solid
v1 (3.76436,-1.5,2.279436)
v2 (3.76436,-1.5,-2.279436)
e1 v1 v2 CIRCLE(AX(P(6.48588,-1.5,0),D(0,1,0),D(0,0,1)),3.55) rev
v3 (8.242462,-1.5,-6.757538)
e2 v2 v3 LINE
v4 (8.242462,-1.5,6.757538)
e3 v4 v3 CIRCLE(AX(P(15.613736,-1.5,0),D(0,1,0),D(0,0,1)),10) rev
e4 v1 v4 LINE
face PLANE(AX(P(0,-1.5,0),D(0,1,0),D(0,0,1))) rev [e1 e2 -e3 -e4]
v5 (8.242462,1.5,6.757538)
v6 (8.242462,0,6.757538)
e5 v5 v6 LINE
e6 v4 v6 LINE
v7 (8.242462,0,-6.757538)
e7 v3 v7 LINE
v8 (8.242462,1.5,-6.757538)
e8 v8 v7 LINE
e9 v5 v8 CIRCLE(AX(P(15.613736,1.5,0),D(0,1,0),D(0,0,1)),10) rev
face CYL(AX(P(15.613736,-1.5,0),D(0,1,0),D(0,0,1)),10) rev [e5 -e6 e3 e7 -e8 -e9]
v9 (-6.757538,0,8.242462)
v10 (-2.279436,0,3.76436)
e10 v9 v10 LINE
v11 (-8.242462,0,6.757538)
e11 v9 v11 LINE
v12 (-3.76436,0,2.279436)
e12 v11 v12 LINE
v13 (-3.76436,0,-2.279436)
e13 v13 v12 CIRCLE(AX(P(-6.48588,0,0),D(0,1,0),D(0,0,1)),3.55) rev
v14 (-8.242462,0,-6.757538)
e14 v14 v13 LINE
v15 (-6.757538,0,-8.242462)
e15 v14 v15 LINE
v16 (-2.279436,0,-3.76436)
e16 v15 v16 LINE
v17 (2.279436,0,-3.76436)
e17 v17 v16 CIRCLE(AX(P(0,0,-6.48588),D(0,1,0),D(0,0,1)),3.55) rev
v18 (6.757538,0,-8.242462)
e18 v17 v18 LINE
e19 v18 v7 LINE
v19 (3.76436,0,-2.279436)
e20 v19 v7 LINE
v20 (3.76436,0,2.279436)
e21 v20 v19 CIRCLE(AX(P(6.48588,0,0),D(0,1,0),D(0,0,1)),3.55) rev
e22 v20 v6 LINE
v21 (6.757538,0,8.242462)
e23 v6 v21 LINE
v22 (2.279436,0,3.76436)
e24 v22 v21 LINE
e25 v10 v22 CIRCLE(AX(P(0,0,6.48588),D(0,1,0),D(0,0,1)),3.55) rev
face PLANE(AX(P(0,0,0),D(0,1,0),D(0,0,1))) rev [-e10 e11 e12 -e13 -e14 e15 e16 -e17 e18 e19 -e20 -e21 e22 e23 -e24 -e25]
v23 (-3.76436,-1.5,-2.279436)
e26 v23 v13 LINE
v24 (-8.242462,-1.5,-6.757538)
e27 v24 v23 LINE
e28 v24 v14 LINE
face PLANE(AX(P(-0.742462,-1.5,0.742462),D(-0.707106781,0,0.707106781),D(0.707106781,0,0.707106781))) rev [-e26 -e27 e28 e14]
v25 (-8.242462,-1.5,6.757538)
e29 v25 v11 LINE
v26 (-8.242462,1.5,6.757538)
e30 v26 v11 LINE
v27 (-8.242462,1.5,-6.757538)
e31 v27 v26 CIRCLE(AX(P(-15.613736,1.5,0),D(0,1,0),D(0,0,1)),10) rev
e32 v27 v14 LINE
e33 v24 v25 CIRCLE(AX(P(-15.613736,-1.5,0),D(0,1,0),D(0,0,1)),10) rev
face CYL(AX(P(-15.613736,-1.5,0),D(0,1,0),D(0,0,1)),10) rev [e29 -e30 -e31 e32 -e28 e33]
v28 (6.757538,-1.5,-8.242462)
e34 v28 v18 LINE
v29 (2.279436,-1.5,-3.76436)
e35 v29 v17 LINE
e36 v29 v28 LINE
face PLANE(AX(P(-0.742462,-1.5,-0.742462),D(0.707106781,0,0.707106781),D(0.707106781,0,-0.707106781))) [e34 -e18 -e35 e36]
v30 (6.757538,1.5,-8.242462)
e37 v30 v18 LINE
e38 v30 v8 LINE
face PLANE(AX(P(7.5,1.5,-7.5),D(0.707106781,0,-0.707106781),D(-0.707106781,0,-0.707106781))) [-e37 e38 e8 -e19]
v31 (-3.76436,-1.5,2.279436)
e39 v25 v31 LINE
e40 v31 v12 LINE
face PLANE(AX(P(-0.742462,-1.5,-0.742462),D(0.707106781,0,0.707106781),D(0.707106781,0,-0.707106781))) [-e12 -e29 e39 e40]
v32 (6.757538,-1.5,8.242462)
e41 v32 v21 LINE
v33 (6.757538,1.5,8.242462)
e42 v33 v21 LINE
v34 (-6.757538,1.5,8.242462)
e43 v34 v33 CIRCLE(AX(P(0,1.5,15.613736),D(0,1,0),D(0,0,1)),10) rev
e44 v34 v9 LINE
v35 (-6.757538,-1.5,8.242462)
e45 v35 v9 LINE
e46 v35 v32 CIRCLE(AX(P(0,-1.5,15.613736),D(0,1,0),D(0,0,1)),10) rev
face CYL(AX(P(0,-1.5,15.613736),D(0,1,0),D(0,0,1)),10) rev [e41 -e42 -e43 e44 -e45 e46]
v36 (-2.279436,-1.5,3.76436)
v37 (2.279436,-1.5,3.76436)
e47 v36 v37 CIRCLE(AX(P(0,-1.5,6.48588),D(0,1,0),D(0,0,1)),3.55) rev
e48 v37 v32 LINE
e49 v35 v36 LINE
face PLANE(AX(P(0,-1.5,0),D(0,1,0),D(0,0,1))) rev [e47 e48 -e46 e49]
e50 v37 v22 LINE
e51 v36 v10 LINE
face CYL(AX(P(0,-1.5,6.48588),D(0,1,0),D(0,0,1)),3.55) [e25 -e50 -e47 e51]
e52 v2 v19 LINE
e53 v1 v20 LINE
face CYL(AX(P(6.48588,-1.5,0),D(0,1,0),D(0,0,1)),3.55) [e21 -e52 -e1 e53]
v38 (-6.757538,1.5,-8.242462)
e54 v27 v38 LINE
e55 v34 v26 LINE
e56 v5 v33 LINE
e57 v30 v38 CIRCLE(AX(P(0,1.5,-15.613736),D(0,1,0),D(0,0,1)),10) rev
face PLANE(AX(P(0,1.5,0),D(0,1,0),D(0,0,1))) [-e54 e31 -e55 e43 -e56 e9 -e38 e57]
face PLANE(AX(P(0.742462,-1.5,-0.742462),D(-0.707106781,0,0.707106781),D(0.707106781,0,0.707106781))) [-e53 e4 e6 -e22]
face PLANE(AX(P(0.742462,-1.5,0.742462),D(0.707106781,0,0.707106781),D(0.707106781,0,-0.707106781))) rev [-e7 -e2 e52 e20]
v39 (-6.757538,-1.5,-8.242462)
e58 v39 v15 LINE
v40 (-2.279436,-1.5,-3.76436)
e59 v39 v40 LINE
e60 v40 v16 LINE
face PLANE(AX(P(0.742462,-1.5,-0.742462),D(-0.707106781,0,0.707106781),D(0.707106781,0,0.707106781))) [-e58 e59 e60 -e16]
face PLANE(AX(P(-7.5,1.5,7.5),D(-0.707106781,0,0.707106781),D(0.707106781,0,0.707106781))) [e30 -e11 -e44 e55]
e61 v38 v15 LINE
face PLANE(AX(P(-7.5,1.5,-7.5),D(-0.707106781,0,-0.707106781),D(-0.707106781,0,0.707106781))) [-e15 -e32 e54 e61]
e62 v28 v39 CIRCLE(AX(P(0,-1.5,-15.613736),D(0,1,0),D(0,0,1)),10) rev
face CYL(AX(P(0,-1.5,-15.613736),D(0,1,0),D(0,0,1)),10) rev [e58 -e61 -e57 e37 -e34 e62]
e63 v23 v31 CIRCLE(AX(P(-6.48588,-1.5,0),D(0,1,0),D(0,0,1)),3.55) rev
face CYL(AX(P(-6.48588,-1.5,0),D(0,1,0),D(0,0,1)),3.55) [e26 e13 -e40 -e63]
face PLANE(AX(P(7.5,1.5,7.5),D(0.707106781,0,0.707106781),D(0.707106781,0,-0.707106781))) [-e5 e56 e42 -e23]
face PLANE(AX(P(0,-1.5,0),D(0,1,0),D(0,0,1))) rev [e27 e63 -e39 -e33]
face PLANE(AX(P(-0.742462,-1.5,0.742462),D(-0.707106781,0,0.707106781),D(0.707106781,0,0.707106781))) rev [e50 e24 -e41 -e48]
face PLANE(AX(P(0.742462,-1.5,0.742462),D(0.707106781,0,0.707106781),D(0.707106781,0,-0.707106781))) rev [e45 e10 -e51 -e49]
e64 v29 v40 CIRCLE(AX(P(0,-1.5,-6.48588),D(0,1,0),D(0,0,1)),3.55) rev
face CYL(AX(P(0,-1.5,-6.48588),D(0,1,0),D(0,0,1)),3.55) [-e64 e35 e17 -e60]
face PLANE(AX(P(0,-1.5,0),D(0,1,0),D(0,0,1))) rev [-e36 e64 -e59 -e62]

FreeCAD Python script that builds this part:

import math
import FreeCAD as App
import Part
import Sketcher

doc = App.newDocument("Part")
body = doc.addObject("PartDesign::Body", "Body")

# Sketch on XZ plane
sketch1 = body.newObject("Sketcher::SketchObject", "Sketch")
sketch1.AttachmentSupport = (doc.getObject("XZ_Plane"), [""])
sketch1.MapMode = "FlatFace"
sketch1.addGeometry([
    Part.LineSegment(App.Vector(2.3, -3.8, 0), App.Vector(6.8, -8.2, 0)),
    Part.ArcOfCircle(Part.Circle(App.Vector(0, -15.6, 0), App.Vector(0, 0, 1), 10), math.radians(47), math.radians(133)),
    Part.LineSegment(App.Vector(-6.8, -8.2, 0), App.Vector(-2.3, -3.8, 0)),
    Part.ArcOfCircle(Part.Circle(App.Vector(0, -6.5, 0), App.Vector(0, 0, 1), 3.5), math.radians(50), math.radians(130)),
], False)
sketch1.addConstraint([
    Sketcher.Constraint("Coincident", 0, 2, 1, 1),
    Sketcher.Constraint("Coincident", 1, 2, 2, 1),
    Sketcher.Constraint("Coincident", 2, 2, 3, 2),
    Sketcher.Constraint("Coincident", 3, 1, 0, 1),
    Sketcher.Constraint("Symmetric", 0, 2, 1, 2, -2),
    Sketcher.Constraint("Symmetric", 2, 2, 3, 1, -2),
    Sketcher.Constraint("Perpendicular", 0, 2),
    Sketcher.Constraint("Radius", 1, 10.0),
    Sketcher.Constraint("Radius", 3, 3.55),
    Sketcher.Constraint("DistanceY", 3, 3, -1, 1, 6.48588),
    Sketcher.Constraint("DistanceY", 2, 2, -1, 1, 3.76436),
    Sketcher.Constraint("DistanceY", 0, 2, 3, 3, 1.756582),
])
pad1 = body.newObject("PartDesign::Pad", "Pad")
pad1.Profile = sketch1
pad1.Type = "TwoLengths"
pad1.Length = 1.5
pad1.Length2 = 1.5
pad1.Reversed = True
body2 = doc.addObject("PartDesign::Body", "Body001")

# Sketch on XZ plane
sketch2 = body2.newObject("Sketcher::SketchObject", "Sketch001")
sketch2.AttachmentSupport = (doc.getObject("XZ_Plane001"), [""])
sketch2.MapMode = "FlatFace"
sketch2.addGeometry([
    Part.LineSegment(App.Vector(-3.8, -2.3, 0), App.Vector(-8.2, -6.8, 0)),
    Part.ArcOfCircle(Part.Circle(App.Vector(-15.6, 0, 0), App.Vector(0, 0, 1), 10), math.radians(-43), math.radians(43)),
    Part.LineSegment(App.Vector(-8.2, 6.8, 0), App.Vector(-3.8, 2.3, 0)),
    Part.ArcOfCircle(Part.Circle(App.Vector(-6.5, 0, 0), App.Vector(0, 0, 1), 3.5), math.radians(-40), math.radians(40)),
], False)
sketch2.addConstraint([
    Sketcher.Constraint("Coincident", 0, 2, 1, 1),
    Sketcher.Constraint("Coincident", 1, 2, 2, 1),
    Sketcher.Constraint("Coincident", 2, 2, 3, 2),
    Sketcher.Constraint("Coincident", 3, 1, 0, 1),
    Sketcher.Constraint("Symmetric", 0, 2, 1, 2, -1),
    Sketcher.Constraint("Symmetric", 2, 2, 3, 1, -1),
    Sketcher.Constraint("Perpendicular", 0, 2),
    Sketcher.Constraint("Radius", 1, 10.0),
    Sketcher.Constraint("Radius", 3, 3.55),
    Sketcher.Constraint("DistanceX", 3, 3, -1, 1, 6.48588),
    Sketcher.Constraint("DistanceX", 2, 2, -1, 1, 3.76436),
    Sketcher.Constraint("DistanceX", 0, 2, 3, 3, 1.756582),
])
pad2 = body2.newObject("PartDesign::Pad", "Pad001")
pad2.Profile = sketch2
pad2.Type = "TwoLengths"
pad2.Length = 1.5
pad2.Length2 = 1.5
pad2.Reversed = True
body3 = doc.addObject("PartDesign::Body", "Body002")

# Sketch on XZ plane
sketch3 = body3.newObject("Sketcher::SketchObject", "Sketch002")
sketch3.AttachmentSupport = (doc.getObject("XZ_Plane002"), [""])
sketch3.MapMode = "FlatFace"
sketch3.addGeometry([
    Part.LineSegment(App.Vector(-2.3, 3.8, 0), App.Vector(-6.8, 8.2, 0)),
    Part.ArcOfCircle(Part.Circle(App.Vector(0, 15.6, 0), App.Vector(0, 0, 1), 10), math.radians(-133), math.radians(-47)),
    Part.LineSegment(App.Vector(6.8, 8.2, 0), App.Vector(2.3, 3.8, 0)),
    Part.ArcOfCircle(Part.Circle(App.Vector(0, 6.5, 0), App.Vector(0, 0, 1), 3.5), math.radians(-130), math.radians(-50)),
], False)
sketch3.addConstraint([
    Sketcher.Constraint("Coincident", 0, 2, 1, 1),
    Sketcher.Constraint("Coincident", 1, 2, 2, 1),
    Sketcher.Constraint("Coincident", 2, 2, 3, 2),
    Sketcher.Constraint("Coincident", 3, 1, 0, 1),
    Sketcher.Constraint("Symmetric", 0, 2, 1, 2, -2),
    Sketcher.Constraint("Symmetric", 2, 2, 3, 1, -2),
    Sketcher.Constraint("Perpendicular", 0, 2),
    Sketcher.Constraint("Radius", 1, 10.0),
    Sketcher.Constraint("Radius", 3, 3.55),
    Sketcher.Constraint("DistanceY", -1, 1, 3, 3, 6.48588),
    Sketcher.Constraint("DistanceY", -1, 1, 2, 2, 3.76436),
    Sketcher.Constraint("DistanceY", 3, 3, 0, 2, 1.756582),
])
pad3 = body3.newObject("PartDesign::Pad", "Pad002")
pad3.Profile = sketch3
pad3.Type = "TwoLengths"
pad3.Length = 1.5
pad3.Length2 = 1.5
pad3.Reversed = True
body4 = doc.addObject("PartDesign::Body", "Body003")

# Sketch on XZ plane
sketch4 = body4.newObject("Sketcher::SketchObject", "Sketch003")
sketch4.AttachmentSupport = (doc.getObject("XZ_Plane003"), [""])
sketch4.MapMode = "FlatFace"
sketch4.addGeometry([
    Part.LineSegment(App.Vector(3.8, 2.3, 0), App.Vector(8.2, 6.8, 0)),
    Part.ArcOfCircle(Part.Circle(App.Vector(15.6, 0, 0), App.Vector(0, 0, 1), 10), math.radians(137), math.radians(223)),
    Part.LineSegment(App.Vector(8.2, -6.8, 0), App.Vector(3.8, -2.3, 0)),
    Part.ArcOfCircle(Part.Circle(App.Vector(6.5, 0, 0), App.Vector(0, 0, 1), 3.5), math.radians(140), math.radians(220)),
], False)
sketch4.addConstraint([
    Sketcher.Constraint("Coincident", 0, 2, 1, 1),
    Sketcher.Constraint("Coincident", 1, 2, 2, 1),
    Sketcher.Constraint("Coincident", 2, 2, 3, 2),
    Sketcher.Constraint("Coincident", 3, 1, 0, 1),
    Sketcher.Constraint("Symmetric", 0, 2, 1, 2, -1),
    Sketcher.Constraint("Symmetric", 2, 2, 3, 1, -1),
    Sketcher.Constraint("Perpendicular", 0, 2),
    Sketcher.Constraint("Radius", 1, 10.0),
    Sketcher.Constraint("Radius", 3, 3.55),
    Sketcher.Constraint("DistanceX", -1, 1, 3, 3, 6.48588),
    Sketcher.Constraint("DistanceX", -1, 1, 2, 2, 3.76436),
    Sketcher.Constraint("DistanceX", 3, 3, 0, 2, 1.756582),
])
pad4 = body4.newObject("PartDesign::Pad", "Pad003")
pad4.Profile = sketch4
pad4.Type = "TwoLengths"
pad4.Length = 1.5
pad4.Length2 = 1.5
pad4.Reversed = True
body.AllowCompound = True
doc.recompute()

boolean = body.newObject("PartDesign::Boolean", "Boolean")
boolean.Type = "Fuse"
boolean.addObjects([body2])
doc.recompute()

boolean2 = body.newObject("PartDesign::Boolean", "Boolean001")
boolean2.Type = "Fuse"
boolean2.addObjects([body3])
doc.recompute()

boolean3 = body.newObject("PartDesign::Boolean", "Boolean002")
boolean3.Type = "Fuse"
boolean3.addObjects([body4])

# Sketch on XZ plane
sketch5 = body.newObject("Sketcher::SketchObject", "Sketch004")
sketch5.AttachmentSupport = (doc.getObject("XZ_Plane"), [""])
sketch5.MapMode = "FlatFace"
sketch5.addGeometry([
    Part.LineSegment(App.Vector(6.8, -8.2, 0), App.Vector(2.3, -3.8, 0)),  # 0
    Part.ArcOfCircle(Part.Circle(App.Vector(0, -6.5, 0), App.Vector(0, 0, 1), 3.5), math.radians(50), math.radians(130)),  # 1
    Part.LineSegment(App.Vector(-2.3, -3.8, 0), App.Vector(-6.8, -8.2, 0)),  # 2
    Part.LineSegment(App.Vector(-6.8, -8.2, 0), App.Vector(-8.2, -6.8, 0)),  # 3
    Part.LineSegment(App.Vector(-8.2, -6.8, 0), App.Vector(-3.8, -2.3, 0)),  # 4
    Part.ArcOfCircle(Part.Circle(App.Vector(-6.5, 0, 0), App.Vector(0, 0, 1), 3.5), math.radians(-40), math.radians(40)),  # 5
    Part.LineSegment(App.Vector(-3.8, 2.3, 0), App.Vector(-8.2, 6.8, 0)),  # 6
    Part.LineSegment(App.Vector(-8.2, 6.8, 0), App.Vector(-6.8, 8.2, 0)),  # 7
    Part.LineSegment(App.Vector(-6.8, 8.2, 0), App.Vector(-2.3, 3.8, 0)),  # 8
    Part.ArcOfCircle(Part.Circle(App.Vector(0, 6.5, 0), App.Vector(0, 0, 1), 3.5), math.radians(-130), math.radians(-50)),  # 9
    Part.LineSegment(App.Vector(2.3, 3.8, 0), App.Vector(6.8, 8.2, 0)),  # 10
    Part.LineSegment(App.Vector(6.8, 8.2, 0), App.Vector(8.2, 6.8, 0)),  # 11
    Part.LineSegment(App.Vector(8.2, 6.8, 0), App.Vector(3.8, 2.3, 0)),  # 12
    Part.ArcOfCircle(Part.Circle(App.Vector(6.5, 0, 0), App.Vector(0, 0, 1), 3.5), math.radians(140), math.radians(220)),  # 13
    Part.LineSegment(App.Vector(3.8, -2.3, 0), App.Vector(8.2, -6.8, 0)),  # 14
    Part.LineSegment(App.Vector(8.2, -6.8, 0), App.Vector(6.8, -8.2, 0)),  # 15
], False)
sketch5.addConstraint([
    Sketcher.Constraint("Coincident", 0, 2, 1, 1),
    Sketcher.Constraint("Coincident", 1, 2, 2, 1),
    Sketcher.Constraint("Coincident", 2, 2, 3, 1),
    Sketcher.Constraint("Coincident", 3, 2, 4, 1),
    Sketcher.Constraint("Coincident", 4, 2, 5, 1),
    Sketcher.Constraint("Coincident", 5, 2, 6, 1),
    Sketcher.Constraint("Coincident", 6, 2, 7, 1),
    Sketcher.Constraint("Coincident", 7, 2, 8, 1),
    Sketcher.Constraint("Coincident", 8, 2, 9, 1),
    Sketcher.Constraint("Coincident", 9, 2, 10, 1),
    Sketcher.Constraint("Coincident", 10, 2, 11, 1),
    Sketcher.Constraint("Coincident", 11, 2, 12, 1),
    Sketcher.Constraint("Coincident", 12, 2, 13, 1),
    Sketcher.Constraint("Coincident", 13, 2, 14, 1),
    Sketcher.Constraint("Coincident", 14, 2, 15, 1),
    Sketcher.Constraint("Coincident", 15, 2, 0, 1),
    Sketcher.Constraint("Equal", 1, 5),
    Sketcher.Constraint("Equal", 5, 9),
    Sketcher.Constraint("Equal", 9, 13),
    Sketcher.Constraint("Symmetric", 1, 3, 9, 3, -1, 1),
    Sketcher.Constraint("Symmetric", 5, 3, 13, 3, -1, 1),
    Sketcher.Constraint("Symmetric", 2, 2, 10, 2, -1, 1),
    Sketcher.Constraint("Symmetric", 3, 2, 11, 2, -1, 1),
    Sketcher.Constraint("Symmetric", 6, 2, 14, 2, -1, 1),
    Sketcher.Constraint("Symmetric", 7, 2, 15, 2, -1, 1),
    Sketcher.Constraint("Symmetric", 0, 2, 1, 2, -2),
    Sketcher.Constraint("Symmetric", 7, 2, 10, 2, -2),
    Sketcher.Constraint("Symmetric", 6, 2, 11, 2, -2),
    Sketcher.Constraint("Symmetric", 5, 2, 12, 2, -2),
    Sketcher.Constraint("Perpendicular", 0, 2),
    Sketcher.Constraint("Perpendicular", 2, 3),
    Sketcher.Constraint("Perpendicular", 3, 4),
    Sketcher.Constraint("Perpendicular", 4, 6),
    Sketcher.Constraint("Perpendicular", 7, 8),
    Sketcher.Constraint("Perpendicular", 8, 10),
    Sketcher.Constraint("Perpendicular", 12, 14),
    Sketcher.Constraint("Equal", 2, 4),
    Sketcher.Constraint("Radius", 1, 3.55),
    Sketcher.Constraint("Distance", 3, 2.1),
    Sketcher.Constraint("DistanceY", 1, 3, -1, 1, 6.48588),
    Sketcher.Constraint("DistanceX", 5, 3, -1, 1, 6.48588),
    Sketcher.Constraint("DistanceY", 2, 2, 1, 3, 1.756582),
])
pad5 = body.newObject("PartDesign::Pad", "Pad004")
pad5.Profile = sketch5
pad5.Length = 1.5
pad5.Reversed = True

doc.recompute()
